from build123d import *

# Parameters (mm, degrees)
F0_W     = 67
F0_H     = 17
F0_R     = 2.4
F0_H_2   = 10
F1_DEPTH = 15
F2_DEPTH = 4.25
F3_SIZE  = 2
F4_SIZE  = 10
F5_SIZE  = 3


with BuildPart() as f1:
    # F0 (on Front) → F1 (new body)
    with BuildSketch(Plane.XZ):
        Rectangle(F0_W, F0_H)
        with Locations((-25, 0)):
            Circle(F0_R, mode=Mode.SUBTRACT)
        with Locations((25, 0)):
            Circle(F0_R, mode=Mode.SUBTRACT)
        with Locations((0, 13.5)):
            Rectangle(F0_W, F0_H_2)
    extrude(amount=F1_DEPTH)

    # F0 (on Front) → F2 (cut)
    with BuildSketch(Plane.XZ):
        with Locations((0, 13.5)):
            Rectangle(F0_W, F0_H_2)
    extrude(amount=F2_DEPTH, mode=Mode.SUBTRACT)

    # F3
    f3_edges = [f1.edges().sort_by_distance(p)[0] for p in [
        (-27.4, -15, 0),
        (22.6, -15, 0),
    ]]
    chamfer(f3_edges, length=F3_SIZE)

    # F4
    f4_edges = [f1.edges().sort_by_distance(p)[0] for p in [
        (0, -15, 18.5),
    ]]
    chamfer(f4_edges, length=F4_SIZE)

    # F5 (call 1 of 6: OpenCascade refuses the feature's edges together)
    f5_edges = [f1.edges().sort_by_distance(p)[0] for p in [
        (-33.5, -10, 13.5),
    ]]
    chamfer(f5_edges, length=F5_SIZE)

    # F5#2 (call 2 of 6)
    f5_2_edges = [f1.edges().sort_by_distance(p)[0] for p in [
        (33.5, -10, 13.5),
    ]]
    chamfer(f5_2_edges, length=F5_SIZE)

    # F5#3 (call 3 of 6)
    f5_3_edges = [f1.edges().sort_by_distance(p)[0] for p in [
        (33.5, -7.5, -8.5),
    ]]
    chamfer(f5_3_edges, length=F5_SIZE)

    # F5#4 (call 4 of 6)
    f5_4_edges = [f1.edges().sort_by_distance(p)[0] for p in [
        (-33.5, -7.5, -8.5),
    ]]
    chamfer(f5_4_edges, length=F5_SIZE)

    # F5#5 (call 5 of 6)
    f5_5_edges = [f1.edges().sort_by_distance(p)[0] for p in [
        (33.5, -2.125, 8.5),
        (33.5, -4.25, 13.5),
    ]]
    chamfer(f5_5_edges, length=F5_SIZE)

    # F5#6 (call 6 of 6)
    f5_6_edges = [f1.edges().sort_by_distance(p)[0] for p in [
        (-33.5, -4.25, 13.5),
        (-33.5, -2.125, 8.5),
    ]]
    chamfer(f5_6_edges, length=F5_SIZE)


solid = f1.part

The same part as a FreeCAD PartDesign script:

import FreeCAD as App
import Part
import Sketcher
Q = App.Units.Quantity


def edges_at(feature, points):
    """Names of the edges that pass closest to the given points."""
    edges = feature.Shape.Edges
    near = lambda p: min(range(len(edges)), key=lambda i: edges[i].distToShape(Part.Vertex(*p))[0])
    return sorted({f"Edge{near(p) + 1}" for p in points})


def add_polygon(sketch, points):
    """Adds a closed chain of lines whose ends are joined by coincident constraints."""
    first, n = sketch.GeometryCount, len(points)
    for a, b in zip(points, points[1:] + points[:1]):
        sketch.addGeometry(Part.LineSegment(App.Vector(*a, 0), App.Vector(*b, 0)), False)
    for i in range(n):
        sketch.addConstraint(Sketcher.Constraint("Coincident", first + i, 2, first + (i + 1) % n, 1))

doc = App.newDocument("Part")
body = doc.addObject("PartDesign::Body", "Body")

# Sketch on XZ plane
sketch1 = doc.addObject("Sketcher::SketchObject", "Sketch")
body.addObject(sketch1)
sketch1.AttachmentSupport = (doc.XZ_Plane, [""])
sketch1.MapMode = "FlatFace"
add_polygon(sketch1, [(-33.5, -8.5), (33.5, -8.5), (33.5, 18.5), (-33.5, 18.5)])  # lines 0-3
sketch1.addGeometry(Part.Circle(App.Vector(-25, 0, 0), App.Vector(0, 0, 1), 2.4), False)  # 4
sketch1.addGeometry(Part.Circle(App.Vector(25, 0, 0), App.Vector(0, 0, 1), 2.4), False)  # 5
sketch1.addConstraint(Sketcher.Constraint("Horizontal", 0))
sketch1.addConstraint(Sketcher.Constraint("Vertical", 1))
sketch1.addConstraint(Sketcher.Constraint("Horizontal", 2))
sketch1.addConstraint(Sketcher.Constraint("Vertical", 3))
sketch1.addConstraint(Sketcher.Constraint("Equal", 4, 5))
sketch1.addConstraint(Sketcher.Constraint("Symmetric", 4, 3, 5, 3, -1, 1))
sketch1.addConstraint(Sketcher.Constraint("PointOnObject", 4, 3, -1))
sketch1.addConstraint(Sketcher.Constraint("Diameter", 4, Q("4.8 mm")))
sketch1.addConstraint(Sketcher.Constraint("DistanceX", 0, 1, 0, 2, Q("67 mm")))
sketch1.addConstraint(Sketcher.Constraint("DistanceY", 1, 1, 1, 2, Q("27 mm")))
sketch1.addConstraint(Sketcher.Constraint("DistanceX", 4, 3, -1, 1, Q("25 mm")))
sketch1.addConstraint(Sketcher.Constraint("DistanceX", -1, 1, 0, 2, Q("33.5 mm")))
sketch1.addConstraint(Sketcher.Constraint("DistanceY", 0, 2, -1, 1, Q("8.5 mm")))
pad1 = doc.addObject("PartDesign::Pad", "Pad")
body.addObject(pad1)
pad1.Profile = sketch1
pad1.Length = 15

# Sketch on XZ plane
sketch2 = doc.addObject("Sketcher::SketchObject", "Sketch001")
body.addObject(sketch2)
sketch2.AttachmentSupport = (doc.XZ_Plane, [""])
sketch2.MapMode = "FlatFace"
add_polygon(sketch2, [(-34, 18), (-34, 8), (34, 8), (34, 18)])  # lines 0-3
sketch2.addConstraint(Sketcher.Constraint("Vertical", 0))
sketch2.addConstraint(Sketcher.Constraint("Horizontal", 1))
sketch2.addConstraint(Sketcher.Constraint("Vertical", 2))
sketch2.addConstraint(Sketcher.Constraint("Horizontal", 3))
sketch2.addConstraint(Sketcher.Constraint("DistanceX", 1, 1, 1, 2, Q("67 mm")))
sketch2.addConstraint(Sketcher.Constraint("DistanceY", 0, 2, 0, 1, Q("10 mm")))
sketch2.addConstraint(Sketcher.Constraint("DistanceX", 0, 2, -1, 1, Q("33.5 mm")))
sketch2.addConstraint(Sketcher.Constraint("DistanceY", -1, 1, 0, 2, Q("8.5 mm")))
pocket1 = doc.addObject("PartDesign::Pocket", "Pocket")
body.addObject(pocket1)
pocket1.Profile = sketch2
pocket1.Length = 4.25
pocket1.Reversed = True
doc.recompute()

chamfer = doc.addObject("PartDesign::Chamfer", "Chamfer")
body.addObject(chamfer)
chamfer.Base = (pocket1, edges_at(pocket1, [(-27.4, -15, 0), (22.6, -15, 0)]))
chamfer.Size = 2
doc.recompute()

chamfer2 = doc.addObject("PartDesign::Chamfer", "Chamfer001")
body.addObject(chamfer2)
chamfer2.Base = (chamfer, edges_at(chamfer, [(0, -15, 18.5)]))
chamfer2.Size = 10
doc.recompute()

chamfer3 = doc.addObject("PartDesign::Chamfer", "Chamfer002")
body.addObject(chamfer3)
chamfer3.Base = (chamfer2, edges_at(chamfer2, [(-33.5, -10, 13.5)]))
chamfer3.Size = 3
doc.recompute()

chamfer4 = doc.addObject("PartDesign::Chamfer", "Chamfer003")
body.addObject(chamfer4)
chamfer4.Base = (chamfer3, edges_at(chamfer3, [(33.5, -10, 13.5)]))
chamfer4.Size = 3
doc.recompute()

chamfer5 = doc.addObject("PartDesign::Chamfer", "Chamfer004")
body.addObject(chamfer5)
chamfer5.Base = (chamfer4, edges_at(chamfer4, [(33.5, -7.5, -8.5)]))
chamfer5.Size = 3
doc.recompute()

chamfer6 = doc.addObject("PartDesign::Chamfer", "Chamfer005")
body.addObject(chamfer6)
chamfer6.Base = (chamfer5, edges_at(chamfer5, [(-33.5, -7.5, -8.5)]))
chamfer6.Size = 3
doc.recompute()

chamfer7 = doc.addObject("PartDesign::Chamfer", "Chamfer006")
body.addObject(chamfer7)
chamfer7.Base = (chamfer6, edges_at(chamfer6, [(33.5, -2.125, 8.5), (33.5, -4.25, 11.754)]))
chamfer7.Size = 3
doc.recompute()

chamfer8 = doc.addObject("PartDesign::Chamfer", "Chamfer007")
body.addObject(chamfer8)
chamfer8.Base = (chamfer7, edges_at(chamfer7, [(-33.5, -4.25, 11.754), (-33.5, -2.125, 8.5)]))
chamfer8.Size = 3

doc.recompute()
